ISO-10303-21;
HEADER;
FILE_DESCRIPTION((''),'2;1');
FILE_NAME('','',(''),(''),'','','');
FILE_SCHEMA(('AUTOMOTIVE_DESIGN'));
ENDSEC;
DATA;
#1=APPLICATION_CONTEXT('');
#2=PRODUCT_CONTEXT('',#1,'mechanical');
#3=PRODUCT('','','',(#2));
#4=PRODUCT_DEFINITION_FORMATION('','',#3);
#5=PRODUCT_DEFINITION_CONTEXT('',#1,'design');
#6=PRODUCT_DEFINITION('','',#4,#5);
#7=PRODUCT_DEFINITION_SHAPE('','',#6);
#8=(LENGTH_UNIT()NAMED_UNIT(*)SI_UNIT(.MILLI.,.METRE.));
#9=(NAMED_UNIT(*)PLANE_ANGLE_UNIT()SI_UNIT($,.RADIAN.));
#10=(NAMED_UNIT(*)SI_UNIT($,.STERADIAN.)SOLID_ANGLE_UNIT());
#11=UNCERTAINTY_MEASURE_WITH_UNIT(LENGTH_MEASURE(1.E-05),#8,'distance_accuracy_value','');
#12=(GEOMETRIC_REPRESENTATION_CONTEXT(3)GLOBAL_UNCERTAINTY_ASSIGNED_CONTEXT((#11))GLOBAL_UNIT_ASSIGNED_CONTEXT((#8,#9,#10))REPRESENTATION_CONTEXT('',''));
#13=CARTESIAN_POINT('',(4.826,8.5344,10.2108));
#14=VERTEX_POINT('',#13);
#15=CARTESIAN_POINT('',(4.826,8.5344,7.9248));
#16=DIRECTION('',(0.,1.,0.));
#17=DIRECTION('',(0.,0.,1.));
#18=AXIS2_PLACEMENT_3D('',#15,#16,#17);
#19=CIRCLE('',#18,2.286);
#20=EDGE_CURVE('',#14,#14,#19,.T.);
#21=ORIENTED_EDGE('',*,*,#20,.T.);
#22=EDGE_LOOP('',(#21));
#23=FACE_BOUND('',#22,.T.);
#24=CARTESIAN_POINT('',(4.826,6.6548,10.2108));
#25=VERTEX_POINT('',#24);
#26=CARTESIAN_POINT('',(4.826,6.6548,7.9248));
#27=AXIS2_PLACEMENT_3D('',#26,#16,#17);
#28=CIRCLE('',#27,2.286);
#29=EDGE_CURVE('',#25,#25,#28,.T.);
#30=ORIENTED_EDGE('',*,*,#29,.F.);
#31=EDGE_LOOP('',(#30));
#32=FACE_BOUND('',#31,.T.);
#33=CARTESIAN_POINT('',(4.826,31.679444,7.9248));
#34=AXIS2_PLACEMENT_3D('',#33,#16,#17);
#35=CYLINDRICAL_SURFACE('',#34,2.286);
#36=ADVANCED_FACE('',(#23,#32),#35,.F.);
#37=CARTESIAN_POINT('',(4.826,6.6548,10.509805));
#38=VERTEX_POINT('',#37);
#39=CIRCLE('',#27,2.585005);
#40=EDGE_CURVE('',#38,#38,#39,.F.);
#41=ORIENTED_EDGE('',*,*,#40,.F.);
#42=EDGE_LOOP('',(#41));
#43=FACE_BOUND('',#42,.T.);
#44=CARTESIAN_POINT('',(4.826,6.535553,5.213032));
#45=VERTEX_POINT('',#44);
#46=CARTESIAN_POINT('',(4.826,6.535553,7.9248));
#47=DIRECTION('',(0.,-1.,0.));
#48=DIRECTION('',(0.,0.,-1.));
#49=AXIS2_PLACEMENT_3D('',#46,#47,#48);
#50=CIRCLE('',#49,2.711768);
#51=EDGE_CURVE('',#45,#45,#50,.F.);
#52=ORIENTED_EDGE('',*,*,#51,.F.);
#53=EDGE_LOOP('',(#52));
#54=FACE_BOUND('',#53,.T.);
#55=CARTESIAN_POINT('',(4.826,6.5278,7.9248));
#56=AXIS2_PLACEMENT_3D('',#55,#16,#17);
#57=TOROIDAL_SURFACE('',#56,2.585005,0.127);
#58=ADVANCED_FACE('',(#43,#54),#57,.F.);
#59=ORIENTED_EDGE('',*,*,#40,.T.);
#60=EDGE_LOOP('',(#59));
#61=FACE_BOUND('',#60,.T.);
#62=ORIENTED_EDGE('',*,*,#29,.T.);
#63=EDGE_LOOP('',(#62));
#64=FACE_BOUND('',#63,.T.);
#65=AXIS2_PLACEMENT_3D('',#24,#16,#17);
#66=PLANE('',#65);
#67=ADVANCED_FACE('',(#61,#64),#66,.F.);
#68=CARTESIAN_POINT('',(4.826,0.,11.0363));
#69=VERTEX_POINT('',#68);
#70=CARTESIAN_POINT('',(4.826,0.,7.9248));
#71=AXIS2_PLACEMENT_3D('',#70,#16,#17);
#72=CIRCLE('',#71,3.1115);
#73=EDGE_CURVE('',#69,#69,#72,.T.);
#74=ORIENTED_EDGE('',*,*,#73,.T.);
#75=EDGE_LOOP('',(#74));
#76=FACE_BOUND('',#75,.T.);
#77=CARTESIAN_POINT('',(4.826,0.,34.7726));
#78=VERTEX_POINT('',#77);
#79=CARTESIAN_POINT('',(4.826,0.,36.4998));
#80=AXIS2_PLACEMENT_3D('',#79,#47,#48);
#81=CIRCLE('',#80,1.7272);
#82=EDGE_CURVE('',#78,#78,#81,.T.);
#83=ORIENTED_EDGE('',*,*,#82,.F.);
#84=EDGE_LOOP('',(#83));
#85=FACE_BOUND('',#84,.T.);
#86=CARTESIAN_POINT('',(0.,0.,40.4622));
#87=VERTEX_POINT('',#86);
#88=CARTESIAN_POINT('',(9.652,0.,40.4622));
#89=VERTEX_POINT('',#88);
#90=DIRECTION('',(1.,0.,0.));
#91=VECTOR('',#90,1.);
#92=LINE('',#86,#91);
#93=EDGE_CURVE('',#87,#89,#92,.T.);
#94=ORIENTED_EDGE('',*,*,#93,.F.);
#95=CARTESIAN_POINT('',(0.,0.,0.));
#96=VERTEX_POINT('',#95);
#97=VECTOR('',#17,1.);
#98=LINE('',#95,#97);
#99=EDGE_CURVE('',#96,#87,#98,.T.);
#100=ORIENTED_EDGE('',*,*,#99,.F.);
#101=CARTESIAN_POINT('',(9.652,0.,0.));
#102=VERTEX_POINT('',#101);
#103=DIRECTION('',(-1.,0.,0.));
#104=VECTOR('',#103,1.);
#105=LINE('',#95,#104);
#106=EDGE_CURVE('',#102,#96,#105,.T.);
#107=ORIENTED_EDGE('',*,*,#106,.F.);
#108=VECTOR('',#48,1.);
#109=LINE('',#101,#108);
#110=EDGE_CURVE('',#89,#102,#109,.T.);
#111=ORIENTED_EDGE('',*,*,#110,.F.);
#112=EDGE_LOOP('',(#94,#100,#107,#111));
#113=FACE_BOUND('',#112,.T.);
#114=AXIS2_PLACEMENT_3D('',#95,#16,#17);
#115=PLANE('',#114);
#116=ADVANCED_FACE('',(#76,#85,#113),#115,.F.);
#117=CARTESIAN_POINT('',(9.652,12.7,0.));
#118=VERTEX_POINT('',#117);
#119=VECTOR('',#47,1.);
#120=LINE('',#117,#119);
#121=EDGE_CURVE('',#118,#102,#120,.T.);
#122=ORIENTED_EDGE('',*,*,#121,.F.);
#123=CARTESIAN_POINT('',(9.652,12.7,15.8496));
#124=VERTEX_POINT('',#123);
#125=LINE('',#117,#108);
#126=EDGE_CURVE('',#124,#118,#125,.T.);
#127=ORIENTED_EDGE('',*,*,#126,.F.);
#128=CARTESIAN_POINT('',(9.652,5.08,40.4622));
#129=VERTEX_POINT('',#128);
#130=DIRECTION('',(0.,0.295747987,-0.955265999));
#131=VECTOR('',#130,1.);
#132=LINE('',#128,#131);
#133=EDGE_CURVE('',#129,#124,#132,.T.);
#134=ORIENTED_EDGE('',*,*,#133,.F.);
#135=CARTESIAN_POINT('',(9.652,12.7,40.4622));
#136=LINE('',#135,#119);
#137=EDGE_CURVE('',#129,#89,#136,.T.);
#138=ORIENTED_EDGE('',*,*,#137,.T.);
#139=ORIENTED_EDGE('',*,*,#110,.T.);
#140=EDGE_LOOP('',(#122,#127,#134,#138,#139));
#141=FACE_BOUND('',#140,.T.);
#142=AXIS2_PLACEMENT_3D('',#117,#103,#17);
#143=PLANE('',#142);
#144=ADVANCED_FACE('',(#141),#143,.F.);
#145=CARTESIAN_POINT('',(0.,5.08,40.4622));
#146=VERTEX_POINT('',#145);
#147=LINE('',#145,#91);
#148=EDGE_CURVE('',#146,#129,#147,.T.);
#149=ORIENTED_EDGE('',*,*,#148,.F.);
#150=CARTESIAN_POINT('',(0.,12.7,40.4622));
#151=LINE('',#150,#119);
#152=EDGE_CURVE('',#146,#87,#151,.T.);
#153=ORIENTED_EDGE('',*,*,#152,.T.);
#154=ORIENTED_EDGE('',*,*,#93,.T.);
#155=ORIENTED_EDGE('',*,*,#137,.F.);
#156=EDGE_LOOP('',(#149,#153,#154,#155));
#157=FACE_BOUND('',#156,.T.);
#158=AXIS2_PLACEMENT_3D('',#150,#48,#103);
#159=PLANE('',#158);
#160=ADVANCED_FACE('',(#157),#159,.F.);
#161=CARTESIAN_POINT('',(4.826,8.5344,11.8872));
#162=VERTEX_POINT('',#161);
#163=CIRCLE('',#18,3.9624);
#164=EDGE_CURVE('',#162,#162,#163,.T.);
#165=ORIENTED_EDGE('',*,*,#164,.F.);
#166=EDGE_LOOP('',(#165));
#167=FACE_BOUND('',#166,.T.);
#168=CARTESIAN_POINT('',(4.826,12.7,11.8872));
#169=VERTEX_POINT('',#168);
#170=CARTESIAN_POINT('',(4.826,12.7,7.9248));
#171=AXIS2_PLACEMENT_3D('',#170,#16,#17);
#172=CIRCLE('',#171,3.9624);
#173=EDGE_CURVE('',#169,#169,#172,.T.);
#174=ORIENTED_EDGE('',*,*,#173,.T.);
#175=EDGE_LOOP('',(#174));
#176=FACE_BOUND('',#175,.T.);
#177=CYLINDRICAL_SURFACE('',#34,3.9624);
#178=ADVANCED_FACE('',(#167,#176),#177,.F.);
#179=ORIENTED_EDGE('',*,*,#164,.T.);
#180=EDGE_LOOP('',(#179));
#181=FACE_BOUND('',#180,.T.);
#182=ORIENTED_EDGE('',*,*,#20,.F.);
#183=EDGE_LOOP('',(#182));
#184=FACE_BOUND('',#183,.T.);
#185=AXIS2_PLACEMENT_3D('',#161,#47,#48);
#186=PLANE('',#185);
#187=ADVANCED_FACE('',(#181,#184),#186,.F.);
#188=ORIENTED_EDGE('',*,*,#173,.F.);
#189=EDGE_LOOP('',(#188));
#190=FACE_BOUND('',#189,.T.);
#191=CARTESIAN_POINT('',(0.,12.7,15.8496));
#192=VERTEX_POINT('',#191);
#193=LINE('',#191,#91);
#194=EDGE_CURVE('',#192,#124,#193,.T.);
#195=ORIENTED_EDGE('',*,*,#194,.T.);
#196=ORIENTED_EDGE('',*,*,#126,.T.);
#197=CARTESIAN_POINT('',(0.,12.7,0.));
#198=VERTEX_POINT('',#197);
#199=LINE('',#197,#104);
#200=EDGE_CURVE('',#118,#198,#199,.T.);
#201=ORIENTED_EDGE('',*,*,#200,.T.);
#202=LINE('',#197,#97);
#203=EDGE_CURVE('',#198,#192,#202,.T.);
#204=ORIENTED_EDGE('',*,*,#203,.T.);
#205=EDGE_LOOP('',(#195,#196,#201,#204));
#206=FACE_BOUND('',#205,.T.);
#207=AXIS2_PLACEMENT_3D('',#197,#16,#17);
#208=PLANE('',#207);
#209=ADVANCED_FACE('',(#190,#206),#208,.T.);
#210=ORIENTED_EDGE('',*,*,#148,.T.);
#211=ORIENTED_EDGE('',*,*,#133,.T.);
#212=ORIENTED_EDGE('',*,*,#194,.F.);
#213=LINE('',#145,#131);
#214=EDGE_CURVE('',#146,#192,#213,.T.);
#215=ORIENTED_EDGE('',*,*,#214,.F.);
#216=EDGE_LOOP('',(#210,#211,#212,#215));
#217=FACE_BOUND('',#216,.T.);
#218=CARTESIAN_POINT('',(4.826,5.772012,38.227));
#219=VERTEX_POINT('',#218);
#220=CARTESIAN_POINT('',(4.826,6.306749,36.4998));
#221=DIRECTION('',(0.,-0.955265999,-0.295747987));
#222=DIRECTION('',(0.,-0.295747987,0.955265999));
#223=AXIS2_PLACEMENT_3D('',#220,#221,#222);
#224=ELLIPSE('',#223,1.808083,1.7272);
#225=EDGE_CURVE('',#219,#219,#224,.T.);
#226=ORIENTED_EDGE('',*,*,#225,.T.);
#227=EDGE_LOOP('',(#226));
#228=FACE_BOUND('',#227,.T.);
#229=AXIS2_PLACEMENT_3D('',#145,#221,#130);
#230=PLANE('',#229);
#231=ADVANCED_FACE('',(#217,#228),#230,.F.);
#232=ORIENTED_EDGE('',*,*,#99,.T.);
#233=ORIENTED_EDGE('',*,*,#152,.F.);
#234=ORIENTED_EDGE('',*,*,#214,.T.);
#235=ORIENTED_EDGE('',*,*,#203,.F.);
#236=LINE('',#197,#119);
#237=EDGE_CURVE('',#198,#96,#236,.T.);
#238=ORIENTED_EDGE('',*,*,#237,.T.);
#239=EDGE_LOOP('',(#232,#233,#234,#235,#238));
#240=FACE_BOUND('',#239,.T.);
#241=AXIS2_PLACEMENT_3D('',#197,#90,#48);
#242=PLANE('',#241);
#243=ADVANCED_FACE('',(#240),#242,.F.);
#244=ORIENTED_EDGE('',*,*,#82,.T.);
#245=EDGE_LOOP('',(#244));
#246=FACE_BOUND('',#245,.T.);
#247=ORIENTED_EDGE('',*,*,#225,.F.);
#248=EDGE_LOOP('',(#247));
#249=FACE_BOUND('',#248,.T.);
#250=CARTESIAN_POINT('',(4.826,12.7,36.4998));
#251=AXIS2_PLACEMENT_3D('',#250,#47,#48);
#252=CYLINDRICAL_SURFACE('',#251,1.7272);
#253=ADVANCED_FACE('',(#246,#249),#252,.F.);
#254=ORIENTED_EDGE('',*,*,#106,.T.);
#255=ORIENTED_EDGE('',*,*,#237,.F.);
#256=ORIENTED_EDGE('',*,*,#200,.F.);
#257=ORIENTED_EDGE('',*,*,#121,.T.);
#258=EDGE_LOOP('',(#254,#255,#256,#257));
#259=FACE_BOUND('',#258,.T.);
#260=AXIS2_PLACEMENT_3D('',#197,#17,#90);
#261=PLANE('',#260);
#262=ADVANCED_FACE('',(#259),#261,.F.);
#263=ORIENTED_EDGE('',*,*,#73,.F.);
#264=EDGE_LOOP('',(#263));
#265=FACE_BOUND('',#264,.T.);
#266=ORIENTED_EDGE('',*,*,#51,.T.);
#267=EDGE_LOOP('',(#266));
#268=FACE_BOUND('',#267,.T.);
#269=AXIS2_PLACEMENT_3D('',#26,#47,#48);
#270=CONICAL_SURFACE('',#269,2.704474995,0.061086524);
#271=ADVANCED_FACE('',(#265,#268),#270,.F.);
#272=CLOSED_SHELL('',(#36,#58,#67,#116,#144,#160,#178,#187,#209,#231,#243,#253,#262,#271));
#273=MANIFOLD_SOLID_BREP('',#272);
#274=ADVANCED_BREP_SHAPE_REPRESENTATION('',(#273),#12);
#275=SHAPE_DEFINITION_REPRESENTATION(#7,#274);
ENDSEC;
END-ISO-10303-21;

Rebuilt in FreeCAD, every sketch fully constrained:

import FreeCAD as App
import Part
import Sketcher
Q = App.Units.Quantity


def edges_at(feature, points):
    """Names of the edges that pass closest to the given points."""
    edges = feature.Shape.Edges
    near = lambda p: min(range(len(edges)), key=lambda i: edges[i].distToShape(Part.Vertex(*p))[0])
    return sorted({f"Edge{near(p) + 1}" for p in points})


def add_polygon(sketch, points):
    """Adds a closed chain of lines whose ends are joined by coincident constraints."""
    first, n = sketch.GeometryCount, len(points)
    for a, b in zip(points, points[1:] + points[:1]):
        sketch.addGeometry(Part.LineSegment(App.Vector(*a, 0), App.Vector(*b, 0)), False)
    for i in range(n):
        sketch.addConstraint(Sketcher.Constraint("Coincident", first + i, 2, first + (i + 1) % n, 1))

doc = App.newDocument("Part")
params = doc.addObject("Spreadsheet::Sheet", "Params")
for row, (alias, value) in enumerate([
    ("sketch1_width", "0.38 in"),
    ("sketch1_height", "1.593 in"),
    ("pad1_length", "0.5 in"),
    ("sketch2_width", "0.5 in"),
    ("sketch2_width2", "0.164 in"),
    ("sketch2_width3", "0.074 in"),
    ("sketch2_height", "0.066 in"),
    ("sketch2_height2", "0.156 in"),
    ("groove_angle", "360 deg"),
    ("fillet_radius", "0.005 in"),
    ("sketch3_width", "0.3 in"),
    ("sketch3_height", "0.969 in"),
    ("sketch4_diameter", "0.136 in"),
], start=1):
    params.set(f"A{row}", alias)
    params.set(f"B{row}", "=" + value)
    params.setAlias(f"B{row}", alias)

body = doc.addObject("PartDesign::Body", "Body")

sketch1 = doc.addObject("Sketcher::SketchObject", "Sketch")
body.addObject(sketch1)
sketch1.AttachmentSupport = (doc.XZ_Plane, [""])
sketch1.MapMode = "FlatFace"
add_polygon(sketch1, [(0, 0), (0, 40), (10, 40), (10, 0)])
sketch1.addConstraint([
    Sketcher.Constraint("Vertical", 0),
    Sketcher.Constraint("Horizontal", 1),
    Sketcher.Constraint("Vertical", 2),
    Sketcher.Constraint("Horizontal", 3),
    Sketcher.Constraint("Coincident", 3, 2, -1, 1),
    Sketcher.Constraint("DistanceX", 1, 1, 1, 2, Q("0.38 in")),
    Sketcher.Constraint("DistanceY", 0, 1, 0, 2, Q("1.593 in")),
])
sketch1.setExpression("Constraints[9]", "Params.sketch1_width")
sketch1.setExpression("Constraints[10]", "Params.sketch1_height")
pad1 = doc.addObject("PartDesign::Pad", "Pad")
body.addObject(pad1)
pad1.Profile = sketch1
pad1.setExpression("Length", "Params.pad1_length")
pad1.Reversed = True

sketch2 = doc.addObject("Sketcher::SketchObject", "Sketch001")
body.addObject(sketch2)
sketch2.AttachmentSupport = (doc.YZ_Plane, [""])
sketch2.MapMode = "FlatFace"
sketch2.AttachmentOffset = App.Placement(App.Vector(0, 0, 0.19 * 25.4), App.Rotation())
add_polygon(sketch2, [(12.7, 11.89), (8.53, 11.89), (8.53, 10.21), (6.65, 10.21), (6.65, 10.63), (0, 11.04), (0, 7.92), (12.7, 7.92)])
sketch2.addGeometry(Part.LineSegment(App.Vector(12.7, 7.92, 0), App.Vector(0, 7.92, 0)), True)
sketch2.addConstraint([
    Sketcher.Constraint("Horizontal", 0),
    Sketcher.Constraint("Vertical", 1),
    Sketcher.Constraint("Horizontal", 2),
    Sketcher.Constraint("Vertical", 3),
    Sketcher.Constraint("Vertical", 5),
    Sketcher.Constraint("Horizontal", 6),
    Sketcher.Constraint("Vertical", 7),
    Sketcher.Constraint("Horizontal", 8),
    Sketcher.Constraint("Coincident", 8, 1, 6, 2),
    Sketcher.Constraint("PointOnObject", 4, 2, -2),
    Sketcher.Constraint("PointOnObject", 8, 2, -2),
    Sketcher.Constraint("DistanceX", 6, 1, 6, 2, Q("0.5 in")),
    Sketcher.Constraint("Angle", 4, Q("176.5 deg")),
    Sketcher.Constraint("DistanceX", 0, 2, 0, 1, Q("0.164 in")),
    Sketcher.Constraint("DistanceX", 2, 2, 2, 1, Q("0.074 in")),
    Sketcher.Constraint("DistanceY", 1, 2, 1, 1, Q("0.066 in")),
    Sketcher.Constraint("DistanceY", 7, 1, 7, 2, Q("0.156 in")),
    Sketcher.Constraint("DistanceY", 5, 2, 5, 1, Q("0.1225 in")),
    Sketcher.Constraint("DistanceY", -1, 1, 0, 2, Q("0.468 in")),
])
sketch2.setExpression("Constraints[19]", "Params.sketch2_width")
sketch2.setExpression("Constraints[21]", "Params.sketch2_width2")
sketch2.setExpression("Constraints[22]", "Params.sketch2_width3")
sketch2.setExpression("Constraints[23]", "Params.sketch2_height")
sketch2.setExpression("Constraints[24]", "Params.sketch2_height2")
groove = doc.addObject("PartDesign::Groove", "Groove")
body.addObject(groove)
groove.Profile = sketch2
groove.ReferenceAxis = (sketch2, ["Axis0"])
groove.setExpression("Angle", "Params.groove_angle")
doc.recompute()

fillet = doc.addObject("PartDesign::Fillet", "Fillet")
body.addObject(fillet)
fillet.Base = (groove, edges_at(groove, [(4.826, 6.655, 5.22)]))
fillet.setExpression("Radius", "Params.fillet_radius")

sketch3 = doc.addObject("Sketcher::SketchObject", "Sketch002")
body.addObject(sketch3)
sketch3.AttachmentSupport = (doc.YZ_Plane, [""])
sketch3.MapMode = "FlatFace"
sketch3.AttachmentOffset = App.Placement(App.Vector(0, 0, 0.38 * 25.4), App.Rotation())
add_polygon(sketch3, [(13, 40), (5, 40), (13, 16)])
sketch3.addConstraint([
    Sketcher.Constraint("Horizontal", 0),
    Sketcher.Constraint("Vertical", 2),
    Sketcher.Constraint("DistanceX", 0, 2, 0, 1, Q("0.3 in")),
    Sketcher.Constraint("DistanceX", -1, 1, 0, 2, Q("0.2 in")),
    Sketcher.Constraint("DistanceY", 2, 1, 2, 2, Q("0.969 in")),
    Sketcher.Constraint("DistanceY", -1, 1, 0, 2, Q("1.593 in")),
])
sketch3.setExpression("Constraints[5]", "Params.sketch3_width")
sketch3.setExpression("Constraints[7]", "Params.sketch3_height")
pocket1 = doc.addObject("PartDesign::Pocket", "Pocket")
body.addObject(pocket1)
pocket1.Profile = sketch3
pocket1.Type = "ThroughAll"

sketch4 = doc.addObject("Sketcher::SketchObject", "Sketch003")
body.addObject(sketch4)
sketch4.AttachmentSupport = (doc.XZ_Plane, [""])
sketch4.MapMode = "FlatFace"
sketch4.addGeometry(Part.Circle(App.Vector(4.8, 36.5, 0), App.Vector(0, 0, 1), 1.7), False)
sketch4.addConstraint([
    Sketcher.Constraint("Diameter", 0, Q("0.136 in")),
    Sketcher.Constraint("DistanceX", -1, 1, 0, 3, Q("0.19 in")),
    Sketcher.Constraint("DistanceY", -1, 1, 0, 3, Q("1.437 in")),
])
sketch4.setExpression("Constraints[0]", "Params.sketch4_diameter")
pocket2 = doc.addObject("PartDesign::Pocket", "Pocket001")
body.addObject(pocket2)
pocket2.Profile = sketch4
pocket2.Type = "ThroughAll"

doc.recompute()
